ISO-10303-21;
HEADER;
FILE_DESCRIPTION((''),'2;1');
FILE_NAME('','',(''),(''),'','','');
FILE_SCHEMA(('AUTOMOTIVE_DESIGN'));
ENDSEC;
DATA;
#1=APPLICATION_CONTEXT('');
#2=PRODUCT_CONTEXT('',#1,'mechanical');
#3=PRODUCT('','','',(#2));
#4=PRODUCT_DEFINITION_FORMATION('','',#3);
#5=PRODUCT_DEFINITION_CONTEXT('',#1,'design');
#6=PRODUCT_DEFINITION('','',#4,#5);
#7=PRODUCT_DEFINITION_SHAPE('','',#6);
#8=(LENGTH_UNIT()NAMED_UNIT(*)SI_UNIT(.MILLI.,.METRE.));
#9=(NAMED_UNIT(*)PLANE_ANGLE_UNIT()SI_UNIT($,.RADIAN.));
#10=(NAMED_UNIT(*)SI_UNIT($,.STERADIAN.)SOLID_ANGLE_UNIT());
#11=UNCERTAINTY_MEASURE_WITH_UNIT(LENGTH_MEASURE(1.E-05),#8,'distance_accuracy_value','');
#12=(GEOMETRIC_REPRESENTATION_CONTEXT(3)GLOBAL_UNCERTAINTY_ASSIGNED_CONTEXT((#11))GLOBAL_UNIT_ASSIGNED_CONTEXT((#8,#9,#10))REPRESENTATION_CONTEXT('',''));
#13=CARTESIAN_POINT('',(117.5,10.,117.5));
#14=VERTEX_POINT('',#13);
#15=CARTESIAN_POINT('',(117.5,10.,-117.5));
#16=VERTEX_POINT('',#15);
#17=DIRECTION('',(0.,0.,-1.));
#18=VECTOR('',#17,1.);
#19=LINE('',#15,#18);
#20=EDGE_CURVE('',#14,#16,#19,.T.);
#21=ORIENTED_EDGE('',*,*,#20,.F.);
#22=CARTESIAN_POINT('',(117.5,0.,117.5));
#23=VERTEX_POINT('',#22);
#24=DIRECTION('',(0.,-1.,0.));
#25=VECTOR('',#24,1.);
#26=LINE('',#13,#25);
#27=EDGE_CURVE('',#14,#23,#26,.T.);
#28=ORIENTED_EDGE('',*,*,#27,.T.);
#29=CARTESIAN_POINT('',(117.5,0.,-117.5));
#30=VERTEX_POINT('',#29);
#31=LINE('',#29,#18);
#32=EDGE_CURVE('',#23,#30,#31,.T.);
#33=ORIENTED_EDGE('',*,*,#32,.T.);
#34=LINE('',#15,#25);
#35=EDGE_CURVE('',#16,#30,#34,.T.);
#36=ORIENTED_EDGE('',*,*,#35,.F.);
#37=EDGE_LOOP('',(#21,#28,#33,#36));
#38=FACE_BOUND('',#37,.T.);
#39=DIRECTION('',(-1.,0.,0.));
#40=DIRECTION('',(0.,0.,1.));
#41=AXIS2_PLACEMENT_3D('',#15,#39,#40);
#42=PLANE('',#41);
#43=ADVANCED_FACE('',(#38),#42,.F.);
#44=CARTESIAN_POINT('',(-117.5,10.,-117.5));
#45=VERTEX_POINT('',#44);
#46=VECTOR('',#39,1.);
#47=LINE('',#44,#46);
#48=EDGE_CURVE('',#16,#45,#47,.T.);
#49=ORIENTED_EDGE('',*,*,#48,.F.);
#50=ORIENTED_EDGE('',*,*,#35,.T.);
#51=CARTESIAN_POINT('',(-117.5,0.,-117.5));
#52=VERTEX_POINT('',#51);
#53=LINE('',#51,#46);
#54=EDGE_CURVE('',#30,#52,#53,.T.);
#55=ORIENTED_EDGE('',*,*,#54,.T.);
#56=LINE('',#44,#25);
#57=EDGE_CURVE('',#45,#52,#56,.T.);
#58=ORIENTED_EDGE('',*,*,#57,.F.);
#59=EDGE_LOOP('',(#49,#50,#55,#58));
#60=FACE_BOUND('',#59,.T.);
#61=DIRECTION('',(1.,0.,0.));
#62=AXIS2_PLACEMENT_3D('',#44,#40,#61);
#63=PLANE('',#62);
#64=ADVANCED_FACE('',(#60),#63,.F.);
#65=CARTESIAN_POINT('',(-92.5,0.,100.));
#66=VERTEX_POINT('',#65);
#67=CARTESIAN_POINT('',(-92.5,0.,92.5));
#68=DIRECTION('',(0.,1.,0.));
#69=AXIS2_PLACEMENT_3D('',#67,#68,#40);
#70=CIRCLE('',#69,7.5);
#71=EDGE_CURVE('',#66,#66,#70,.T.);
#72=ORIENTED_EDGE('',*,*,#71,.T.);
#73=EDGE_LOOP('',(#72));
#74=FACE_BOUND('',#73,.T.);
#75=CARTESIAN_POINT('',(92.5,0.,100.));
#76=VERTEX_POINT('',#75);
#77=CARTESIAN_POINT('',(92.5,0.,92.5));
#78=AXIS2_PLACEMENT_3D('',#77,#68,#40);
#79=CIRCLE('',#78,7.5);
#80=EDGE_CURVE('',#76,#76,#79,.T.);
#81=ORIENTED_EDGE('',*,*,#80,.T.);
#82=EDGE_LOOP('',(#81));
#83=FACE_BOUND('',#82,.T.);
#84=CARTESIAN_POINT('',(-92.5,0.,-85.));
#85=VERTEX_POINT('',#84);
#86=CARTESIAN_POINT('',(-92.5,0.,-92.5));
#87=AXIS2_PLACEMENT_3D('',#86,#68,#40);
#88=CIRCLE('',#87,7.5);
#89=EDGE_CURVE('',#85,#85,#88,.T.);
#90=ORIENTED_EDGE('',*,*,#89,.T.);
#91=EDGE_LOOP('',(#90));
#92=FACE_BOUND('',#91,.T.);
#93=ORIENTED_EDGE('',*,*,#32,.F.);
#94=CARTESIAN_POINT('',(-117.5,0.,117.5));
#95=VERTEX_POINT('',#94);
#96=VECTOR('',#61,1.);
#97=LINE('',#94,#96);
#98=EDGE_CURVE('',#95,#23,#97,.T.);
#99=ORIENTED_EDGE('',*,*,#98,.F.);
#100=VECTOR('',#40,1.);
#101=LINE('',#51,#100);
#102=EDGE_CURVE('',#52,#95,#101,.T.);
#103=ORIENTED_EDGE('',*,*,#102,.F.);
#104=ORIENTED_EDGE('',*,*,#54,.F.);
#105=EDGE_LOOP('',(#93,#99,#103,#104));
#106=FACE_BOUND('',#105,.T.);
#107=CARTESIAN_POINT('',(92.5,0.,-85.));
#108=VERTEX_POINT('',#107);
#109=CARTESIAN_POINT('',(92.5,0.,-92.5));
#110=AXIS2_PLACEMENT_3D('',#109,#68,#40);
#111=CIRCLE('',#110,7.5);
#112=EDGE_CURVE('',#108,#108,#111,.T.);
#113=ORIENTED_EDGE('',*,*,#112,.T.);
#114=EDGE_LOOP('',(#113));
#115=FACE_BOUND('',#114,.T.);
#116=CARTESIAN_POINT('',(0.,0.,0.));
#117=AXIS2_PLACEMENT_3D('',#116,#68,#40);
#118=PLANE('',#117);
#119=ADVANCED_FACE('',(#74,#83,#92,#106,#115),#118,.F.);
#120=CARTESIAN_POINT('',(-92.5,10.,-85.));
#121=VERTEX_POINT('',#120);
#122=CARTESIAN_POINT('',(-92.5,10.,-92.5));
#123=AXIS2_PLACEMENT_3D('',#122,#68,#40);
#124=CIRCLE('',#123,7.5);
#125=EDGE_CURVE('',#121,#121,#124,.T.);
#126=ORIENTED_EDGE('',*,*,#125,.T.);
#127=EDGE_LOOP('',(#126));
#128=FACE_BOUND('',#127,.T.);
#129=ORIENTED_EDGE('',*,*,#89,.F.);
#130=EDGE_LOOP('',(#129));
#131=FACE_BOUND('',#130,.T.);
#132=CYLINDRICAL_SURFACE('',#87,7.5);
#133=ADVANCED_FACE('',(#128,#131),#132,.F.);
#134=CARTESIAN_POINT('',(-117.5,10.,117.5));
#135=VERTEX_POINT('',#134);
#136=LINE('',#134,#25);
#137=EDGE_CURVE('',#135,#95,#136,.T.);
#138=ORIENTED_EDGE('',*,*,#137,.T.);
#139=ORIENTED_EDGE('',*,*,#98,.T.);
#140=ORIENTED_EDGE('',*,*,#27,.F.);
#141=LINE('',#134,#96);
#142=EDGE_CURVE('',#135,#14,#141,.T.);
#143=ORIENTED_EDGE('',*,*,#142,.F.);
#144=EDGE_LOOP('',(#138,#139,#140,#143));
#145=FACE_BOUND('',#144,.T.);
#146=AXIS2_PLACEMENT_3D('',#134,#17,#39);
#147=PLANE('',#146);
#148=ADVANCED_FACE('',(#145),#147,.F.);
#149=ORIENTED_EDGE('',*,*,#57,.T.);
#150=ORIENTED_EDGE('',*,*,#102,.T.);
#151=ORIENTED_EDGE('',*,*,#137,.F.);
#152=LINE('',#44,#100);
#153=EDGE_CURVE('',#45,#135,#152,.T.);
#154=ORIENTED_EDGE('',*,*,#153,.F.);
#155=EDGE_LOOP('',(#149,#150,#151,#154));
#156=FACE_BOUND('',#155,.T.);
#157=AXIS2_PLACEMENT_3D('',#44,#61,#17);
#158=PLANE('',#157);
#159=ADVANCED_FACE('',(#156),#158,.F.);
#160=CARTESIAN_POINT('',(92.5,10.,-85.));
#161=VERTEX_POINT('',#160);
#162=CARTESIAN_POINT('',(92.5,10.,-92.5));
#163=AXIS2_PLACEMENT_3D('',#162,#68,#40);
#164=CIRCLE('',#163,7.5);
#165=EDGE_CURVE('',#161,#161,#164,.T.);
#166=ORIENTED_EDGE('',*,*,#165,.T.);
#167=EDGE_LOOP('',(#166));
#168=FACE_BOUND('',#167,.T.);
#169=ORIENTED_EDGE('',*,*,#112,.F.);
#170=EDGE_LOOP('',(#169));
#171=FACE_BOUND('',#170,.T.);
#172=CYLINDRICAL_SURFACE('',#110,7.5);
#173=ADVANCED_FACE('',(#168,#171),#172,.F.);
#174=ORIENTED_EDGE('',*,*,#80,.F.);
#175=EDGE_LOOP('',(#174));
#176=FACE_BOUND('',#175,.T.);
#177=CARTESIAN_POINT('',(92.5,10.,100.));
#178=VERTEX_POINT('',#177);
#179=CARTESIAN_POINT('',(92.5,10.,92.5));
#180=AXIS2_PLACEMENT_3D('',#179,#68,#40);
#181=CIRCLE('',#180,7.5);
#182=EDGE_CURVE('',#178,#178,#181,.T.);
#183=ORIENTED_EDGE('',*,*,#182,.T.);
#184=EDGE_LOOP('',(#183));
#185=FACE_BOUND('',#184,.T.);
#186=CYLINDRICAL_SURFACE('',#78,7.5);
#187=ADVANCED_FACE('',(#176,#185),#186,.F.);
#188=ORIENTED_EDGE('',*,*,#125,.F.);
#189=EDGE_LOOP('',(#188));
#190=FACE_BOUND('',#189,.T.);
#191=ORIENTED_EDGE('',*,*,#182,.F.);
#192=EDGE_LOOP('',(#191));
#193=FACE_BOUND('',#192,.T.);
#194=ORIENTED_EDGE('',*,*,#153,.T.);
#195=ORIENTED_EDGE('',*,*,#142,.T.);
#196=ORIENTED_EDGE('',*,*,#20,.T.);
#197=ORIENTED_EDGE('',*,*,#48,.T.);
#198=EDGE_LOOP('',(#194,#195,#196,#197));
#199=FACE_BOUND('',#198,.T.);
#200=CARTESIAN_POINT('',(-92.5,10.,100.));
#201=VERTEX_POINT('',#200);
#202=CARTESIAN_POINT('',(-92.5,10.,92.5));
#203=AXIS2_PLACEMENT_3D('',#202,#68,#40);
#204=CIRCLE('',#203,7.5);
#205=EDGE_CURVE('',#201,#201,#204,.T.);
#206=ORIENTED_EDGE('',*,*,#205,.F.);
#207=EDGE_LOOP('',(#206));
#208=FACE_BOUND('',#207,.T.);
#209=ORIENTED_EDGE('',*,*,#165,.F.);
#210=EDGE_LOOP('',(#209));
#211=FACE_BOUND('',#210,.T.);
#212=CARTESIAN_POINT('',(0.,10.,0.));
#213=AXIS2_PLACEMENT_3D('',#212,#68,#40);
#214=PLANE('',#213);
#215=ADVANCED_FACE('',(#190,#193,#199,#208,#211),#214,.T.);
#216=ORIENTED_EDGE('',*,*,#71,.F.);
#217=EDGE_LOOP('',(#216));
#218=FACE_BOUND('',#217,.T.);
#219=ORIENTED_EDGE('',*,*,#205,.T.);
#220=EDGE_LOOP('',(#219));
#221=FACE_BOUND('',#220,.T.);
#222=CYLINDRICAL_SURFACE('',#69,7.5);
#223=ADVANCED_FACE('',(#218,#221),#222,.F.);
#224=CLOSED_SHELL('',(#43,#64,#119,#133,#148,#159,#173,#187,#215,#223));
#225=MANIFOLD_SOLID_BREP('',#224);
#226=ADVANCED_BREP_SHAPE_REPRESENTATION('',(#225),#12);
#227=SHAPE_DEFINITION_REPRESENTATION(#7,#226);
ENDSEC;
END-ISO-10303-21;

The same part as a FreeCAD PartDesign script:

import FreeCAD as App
import Part
import Sketcher

V = App.Vector
Q = App.Units.Quantity


def add_polygon(sketch, points):
    """Adds a closed chain of lines whose ends are joined by coincident constraints."""
    first, n = sketch.GeometryCount, len(points)
    for a, b in zip(points, points[1:] + points[:1]):
        sketch.addGeometry(Part.LineSegment(App.Vector(*a, 0), App.Vector(*b, 0)), False)
    for i in range(n):
        sketch.addConstraint(Sketcher.Constraint("Coincident", first + i, 2, first + (i + 1) % n, 1))

doc = App.newDocument("Part")
body = doc.addObject("PartDesign::Body", "Body")

# Sketch on XZ plane
sketch1 = body.newObject("Sketcher::SketchObject", "Sketch")
sketch1.AttachmentSupport = (doc.getObject("XZ_Plane"), [""])
sketch1.MapMode = "FlatFace"
add_polygon(sketch1, [(-117.5, -117.5), (-117.5, 117.5), (117.5, 117.5), (117.5, -117.5)])  # lines 0-3
sketch1.addConstraint([
    Sketcher.Constraint("Vertical", 0),
    Sketcher.Constraint("Horizontal", 1),
    Sketcher.Constraint("Vertical", 2),
    Sketcher.Constraint("Horizontal", 3),
    Sketcher.Constraint("Symmetric", 0, 2, 2, 2, -1, 1),
    Sketcher.Constraint("Equal", 3, 0),
    Sketcher.Constraint("DistanceX", 1, 1, 1, 2, Q("235 mm")),
])
pad1 = body.newObject("PartDesign::Pad", "Pad")
pad1.Profile = sketch1
pad1.Length = 10
pad1.Reversed = True

# Sketch on XZ plane
sketch2 = body.newObject("Sketcher::SketchObject", "Sketch001")
sketch2.AttachmentSupport = (doc.getObject("XZ_Plane"), [""])
sketch2.MapMode = "FlatFace"
sketch2.AttachmentOffset = App.Placement(V(0, 0, -10), App.Rotation())
sketch2.addGeometry([
    Part.Circle(V(-92.5, -92.5, 0), V(0, 0, 1), 7.5),
    Part.Circle(V(-92.5, 92.5, 0), V(0, 0, 1), 7.5),
    Part.Circle(V(92.5, 92.5, 0), V(0, 0, 1), 7.5),
    Part.Circle(V(92.5, -92.5, 0), V(0, 0, 1), 7.5),
], False)
sketch2.addConstraint([
    Sketcher.Constraint("Equal", 0, 1),
    Sketcher.Constraint("Equal", 1, 2),
    Sketcher.Constraint("Equal", 2, 3),
    Sketcher.Constraint("Symmetric", 0, 3, 2, 3, -1, 1),
    Sketcher.Constraint("Symmetric", 1, 3, 3, 3, -1, 1),
    Sketcher.Constraint("Symmetric", 1, 3, 2, 3, -2),
    Sketcher.Constraint("Diameter", 0, Q("15 mm")),
    Sketcher.Constraint("DistanceY", 0, 3, 1, 3, Q("185 mm")),
    Sketcher.Constraint("DistanceX", 1, 3, 2, 3, Q("185 mm")),
])
pocket1 = body.newObject("PartDesign::Pocket", "Pocket")
pocket1.Profile = sketch2
pocket1.Type = "ThroughAll"
pocket1.Reversed = True

doc.recompute()
